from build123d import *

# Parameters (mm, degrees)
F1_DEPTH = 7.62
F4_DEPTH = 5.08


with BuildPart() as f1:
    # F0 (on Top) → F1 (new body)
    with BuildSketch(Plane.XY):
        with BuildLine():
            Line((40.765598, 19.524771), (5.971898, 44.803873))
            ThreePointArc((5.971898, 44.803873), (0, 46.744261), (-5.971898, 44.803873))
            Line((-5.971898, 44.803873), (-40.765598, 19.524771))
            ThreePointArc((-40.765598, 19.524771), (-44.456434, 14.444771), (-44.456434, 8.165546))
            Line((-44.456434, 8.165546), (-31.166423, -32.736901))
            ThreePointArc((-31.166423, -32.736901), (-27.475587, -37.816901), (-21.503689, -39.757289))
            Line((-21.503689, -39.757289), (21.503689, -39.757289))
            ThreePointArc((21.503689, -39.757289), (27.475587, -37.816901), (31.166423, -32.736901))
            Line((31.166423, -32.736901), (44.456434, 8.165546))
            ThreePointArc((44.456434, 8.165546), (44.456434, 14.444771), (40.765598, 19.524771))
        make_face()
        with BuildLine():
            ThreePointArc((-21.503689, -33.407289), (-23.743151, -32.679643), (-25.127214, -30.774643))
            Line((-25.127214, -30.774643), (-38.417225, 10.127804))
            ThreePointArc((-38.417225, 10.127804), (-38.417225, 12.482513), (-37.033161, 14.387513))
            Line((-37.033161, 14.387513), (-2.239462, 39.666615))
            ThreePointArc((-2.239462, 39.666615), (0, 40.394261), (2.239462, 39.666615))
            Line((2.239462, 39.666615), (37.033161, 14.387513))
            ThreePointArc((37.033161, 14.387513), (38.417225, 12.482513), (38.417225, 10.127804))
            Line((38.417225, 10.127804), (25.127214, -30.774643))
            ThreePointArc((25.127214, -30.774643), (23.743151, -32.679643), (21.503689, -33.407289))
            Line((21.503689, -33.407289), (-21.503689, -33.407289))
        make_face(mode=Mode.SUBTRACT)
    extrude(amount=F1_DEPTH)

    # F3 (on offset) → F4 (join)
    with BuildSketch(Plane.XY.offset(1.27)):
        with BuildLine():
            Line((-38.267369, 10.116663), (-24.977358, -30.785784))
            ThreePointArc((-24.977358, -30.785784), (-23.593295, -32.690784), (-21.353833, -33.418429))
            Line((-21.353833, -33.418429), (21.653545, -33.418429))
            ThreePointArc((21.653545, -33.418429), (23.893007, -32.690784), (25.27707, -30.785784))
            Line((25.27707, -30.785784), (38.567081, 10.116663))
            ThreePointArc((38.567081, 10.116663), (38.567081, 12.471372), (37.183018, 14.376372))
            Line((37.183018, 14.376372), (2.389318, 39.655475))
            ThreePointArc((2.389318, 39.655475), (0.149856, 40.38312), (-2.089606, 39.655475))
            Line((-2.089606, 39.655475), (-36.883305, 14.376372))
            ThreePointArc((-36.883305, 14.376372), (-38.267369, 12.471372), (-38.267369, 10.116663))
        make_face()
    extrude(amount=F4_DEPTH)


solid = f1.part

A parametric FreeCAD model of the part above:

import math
import FreeCAD as App
import Part
import Sketcher
Q = App.Units.Quantity

doc = App.newDocument("Part")
body = doc.addObject("PartDesign::Body", "Body")

# Sketch on XY plane
sketch1 = body.newObject("Sketcher::SketchObject", "Sketch")
sketch1.AttachmentSupport = (doc.getObject("XY_Plane"), [""])
sketch1.MapMode = "FlatFace"
sketch1.addGeometry([
    Part.LineSegment(App.Vector(40.8, 19.5, 0), App.Vector(6, 44.8, 0)),  # 0
    Part.ArcOfCircle(Part.Circle(App.Vector(0, 36.6, 0), App.Vector(0, 0, 1), 10.2), math.radians(54), math.radians(126)),  # 1
    Part.LineSegment(App.Vector(-6, 44.8, 0), App.Vector(-40.8, 19.5, 0)),  # 2
    Part.ArcOfCircle(Part.Circle(App.Vector(-34.8, 11.3, 0), App.Vector(0, 0, 1), 10.2), math.radians(126), math.radians(198)),  # 3
    Part.LineSegment(App.Vector(-44.5, 8.2, 0), App.Vector(-31.2, -32.7, 0)),  # 4
    Part.ArcOfCircle(Part.Circle(App.Vector(-21.5, -29.6, 0), App.Vector(0, 0, 1), 10.2), math.radians(-162), math.radians(-90)),  # 5
    Part.LineSegment(App.Vector(-21.5, -39.8, 0), App.Vector(21.5, -39.8, 0)),  # 6
    Part.ArcOfCircle(Part.Circle(App.Vector(21.5, -29.6, 0), App.Vector(0, 0, 1), 10.2), math.radians(-90), math.radians(-18)),  # 7
    Part.LineSegment(App.Vector(31.2, -32.7, 0), App.Vector(44.5, 8.2, 0)),  # 8
    Part.ArcOfCircle(Part.Circle(App.Vector(34.8, 11.3, 0), App.Vector(0, 0, 1), 10.2), math.radians(-18), math.radians(54)),  # 9
    Part.LineSegment(App.Vector(21.5, -33.4, 0), App.Vector(-21.5, -33.4, 0)),  # 10
    Part.ArcOfCircle(Part.Circle(App.Vector(-21.5, -29.6, 0), App.Vector(0, 0, 1), 3.8), math.radians(-162), math.radians(-90)),  # 11
    Part.LineSegment(App.Vector(-25.1, -30.8, 0), App.Vector(-38.4, 10.1, 0)),  # 12
    Part.ArcOfCircle(Part.Circle(App.Vector(-34.8, 11.3, 0), App.Vector(0, 0, 1), 3.8), math.radians(126), math.radians(198)),  # 13
    Part.LineSegment(App.Vector(-37, 14.4, 0), App.Vector(-2.2, 39.7, 0)),  # 14
    Part.ArcOfCircle(Part.Circle(App.Vector(0, 36.6, 0), App.Vector(0, 0, 1), 3.8), math.radians(54), math.radians(126)),  # 15
    Part.LineSegment(App.Vector(2.2, 39.7, 0), App.Vector(37, 14.4, 0)),  # 16
    Part.ArcOfCircle(Part.Circle(App.Vector(34.8, 11.3, 0), App.Vector(0, 0, 1), 3.8), math.radians(-18), math.radians(54)),  # 17
    Part.LineSegment(App.Vector(38.4, 10.1, 0), App.Vector(25.1, -30.8, 0)),  # 18
    Part.ArcOfCircle(Part.Circle(App.Vector(21.5, -29.6, 0), App.Vector(0, 0, 1), 3.8), math.radians(-90), math.radians(-18)),  # 19
], False)
sketch1.addConstraint([
    Sketcher.Constraint("Tangent", 0, 2, 1, 1),
    Sketcher.Constraint("Tangent", 1, 2, 2, 1),
    Sketcher.Constraint("Tangent", 2, 2, 3, 1),
    Sketcher.Constraint("Tangent", 3, 2, 4, 1),
    Sketcher.Constraint("Tangent", 4, 2, 5, 1),
    Sketcher.Constraint("Tangent", 5, 2, 6, 1),
    Sketcher.Constraint("Tangent", 6, 2, 7, 1),
    Sketcher.Constraint("Tangent", 7, 2, 8, 1),
    Sketcher.Constraint("Tangent", 8, 2, 9, 1),
    Sketcher.Constraint("Tangent", 9, 2, 0, 1),
    Sketcher.Constraint("Tangent", 10, 2, 11, 2),
    Sketcher.Constraint("Tangent", 11, 1, 12, 1),
    Sketcher.Constraint("Tangent", 12, 2, 13, 2),
    Sketcher.Constraint("Tangent", 13, 1, 14, 1),
    Sketcher.Constraint("Tangent", 14, 2, 15, 2),
    Sketcher.Constraint("Tangent", 15, 1, 16, 1),
    Sketcher.Constraint("Tangent", 16, 2, 17, 2),
    Sketcher.Constraint("Tangent", 17, 1, 18, 1),
    Sketcher.Constraint("Tangent", 18, 2, 19, 2),
    Sketcher.Constraint("Tangent", 19, 1, 10, 1),
    Sketcher.Constraint("Horizontal", 6),
    Sketcher.Constraint("Horizontal", 10),
    Sketcher.Constraint("Coincident", 11, 3, 5, 3),
    Sketcher.Constraint("Coincident", 13, 3, 3, 3),
    Sketcher.Constraint("Coincident", 15, 3, 1, 3),
    Sketcher.Constraint("Coincident", 17, 3, 9, 3),
    Sketcher.Constraint("Coincident", 19, 3, 7, 3),
    Sketcher.Constraint("Equal", 3, 5),
    Sketcher.Constraint("Equal", 5, 7),
    Sketcher.Constraint("Equal", 7, 9),
    Sketcher.Constraint("Equal", 11, 13),
    Sketcher.Constraint("Equal", 13, 15),
    Sketcher.Constraint("Equal", 15, 17),
    Sketcher.Constraint("Symmetric", 3, 3, 9, 3, -2),
    Sketcher.Constraint("PointOnObject", 1, 3, -2),
    Sketcher.Constraint("Parallel", 2, 14),
    Sketcher.Constraint("Horizontal", 4, 2, 7, 2),
    Sketcher.Constraint("Equal", 2, 4),
    Sketcher.Constraint("Radius", 1, Q("0.3999999 in")),
    Sketcher.Constraint("Radius", 11, Q("0.15 in")),
    Sketcher.Constraint("Angle", 0, Q("144.000001 deg")),
    Sketcher.Constraint("Angle", 4, Q("-72 deg")),
    Sketcher.Constraint("DistanceY", 11, 1, -1, 1, Q("1.2116001 in")),
    Sketcher.Constraint("DistanceX", 6, 1, 6, 2, Q("43.007378 mm")),
])
pad1 = body.newObject("PartDesign::Pad", "Pad")
pad1.Profile = sketch1
pad1.Length = Q("0.3 in")

# Sketch on XY plane
sketch2 = body.newObject("Sketcher::SketchObject", "Sketch001")
sketch2.AttachmentSupport = (doc.getObject("XY_Plane"), [""])
sketch2.MapMode = "FlatFace"
sketch2.AttachmentOffset = App.Placement(App.Vector(0, 0, 0.05 * 25.4), App.Rotation())
sketch2.addGeometry([
    Part.LineSegment(App.Vector(-38.3, 10.1, 0), App.Vector(-25, -30.8, 0)),  # 0
    Part.ArcOfCircle(Part.Circle(App.Vector(-21.4, -29.6, 0), App.Vector(0, 0, 1), 3.8), math.radians(-162), math.radians(-90)),  # 1
    Part.LineSegment(App.Vector(-21.4, -33.4, 0), App.Vector(21.7, -33.4, 0)),  # 2
    Part.ArcOfCircle(Part.Circle(App.Vector(21.7, -29.6, 0), App.Vector(0, 0, 1), 3.8), math.radians(-90), math.radians(-18)),  # 3
    Part.LineSegment(App.Vector(25.3, -30.8, 0), App.Vector(38.6, 10.1, 0)),  # 4
    Part.ArcOfCircle(Part.Circle(App.Vector(34.9, 11.3, 0), App.Vector(0, 0, 1), 3.8), math.radians(-18), math.radians(54)),  # 5
    Part.LineSegment(App.Vector(37.2, 14.4, 0), App.Vector(2.4, 39.7, 0)),  # 6
    Part.ArcOfCircle(Part.Circle(App.Vector(0.1, 36.6, 0), App.Vector(0, 0, 1), 3.8), math.radians(54), math.radians(126)),  # 7
    Part.LineSegment(App.Vector(-2.1, 39.7, 0), App.Vector(-36.9, 14.4, 0)),  # 8
    Part.ArcOfCircle(Part.Circle(App.Vector(-34.6, 11.3, 0), App.Vector(0, 0, 1), 3.8), math.radians(126), math.radians(198)),  # 9
], False)
sketch2.addConstraint([
    Sketcher.Constraint("Tangent", 0, 2, 1, 1),
    Sketcher.Constraint("Tangent", 1, 2, 2, 1),
    Sketcher.Constraint("Tangent", 2, 2, 3, 1),
    Sketcher.Constraint("Tangent", 3, 2, 4, 1),
    Sketcher.Constraint("Tangent", 4, 2, 5, 1),
    Sketcher.Constraint("Tangent", 5, 2, 6, 1),
    Sketcher.Constraint("Tangent", 6, 2, 7, 1),
    Sketcher.Constraint("Tangent", 7, 2, 8, 1),
    Sketcher.Constraint("Tangent", 8, 2, 9, 1),
    Sketcher.Constraint("Tangent", 9, 2, 0, 1),
    Sketcher.Constraint("Horizontal", 2),
    Sketcher.Constraint("Equal", 1, 3),
    Sketcher.Constraint("Equal", 5, 7),
    Sketcher.Constraint("Equal", 5, 9),
    Sketcher.Constraint("Horizontal", 5, 3, 9, 3),
    Sketcher.Constraint("Horizontal", 0, 2, 3, 2),
    Sketcher.Constraint("Horizontal", 6, 2, 7, 2),
    Sketcher.Constraint("Equal", 4, 6),
    Sketcher.Constraint("Radius", 1, Q("0.1499999 in")),
    Sketcher.Constraint("Radius", 5, Q("0.15 in")),
    Sketcher.Constraint("Angle", 0, Q("-72 deg")),
    Sketcher.Constraint("Angle", 6, Q("144 deg")),
    Sketcher.Constraint("DistanceX", -1, 1, 7, 3, Q("0.0058998 in")),
    Sketcher.Constraint("DistanceX", 2, 1, 2, 2, Q("43.007378 mm")),
    Sketcher.Constraint("DistanceY", 1, 3, -1, 1, Q("29.608431 mm")),
])
pad2 = body.newObject("PartDesign::Pad", "Pad001")
pad2.Profile = sketch2
pad2.Length = Q("0.2 in")

doc.recompute()
